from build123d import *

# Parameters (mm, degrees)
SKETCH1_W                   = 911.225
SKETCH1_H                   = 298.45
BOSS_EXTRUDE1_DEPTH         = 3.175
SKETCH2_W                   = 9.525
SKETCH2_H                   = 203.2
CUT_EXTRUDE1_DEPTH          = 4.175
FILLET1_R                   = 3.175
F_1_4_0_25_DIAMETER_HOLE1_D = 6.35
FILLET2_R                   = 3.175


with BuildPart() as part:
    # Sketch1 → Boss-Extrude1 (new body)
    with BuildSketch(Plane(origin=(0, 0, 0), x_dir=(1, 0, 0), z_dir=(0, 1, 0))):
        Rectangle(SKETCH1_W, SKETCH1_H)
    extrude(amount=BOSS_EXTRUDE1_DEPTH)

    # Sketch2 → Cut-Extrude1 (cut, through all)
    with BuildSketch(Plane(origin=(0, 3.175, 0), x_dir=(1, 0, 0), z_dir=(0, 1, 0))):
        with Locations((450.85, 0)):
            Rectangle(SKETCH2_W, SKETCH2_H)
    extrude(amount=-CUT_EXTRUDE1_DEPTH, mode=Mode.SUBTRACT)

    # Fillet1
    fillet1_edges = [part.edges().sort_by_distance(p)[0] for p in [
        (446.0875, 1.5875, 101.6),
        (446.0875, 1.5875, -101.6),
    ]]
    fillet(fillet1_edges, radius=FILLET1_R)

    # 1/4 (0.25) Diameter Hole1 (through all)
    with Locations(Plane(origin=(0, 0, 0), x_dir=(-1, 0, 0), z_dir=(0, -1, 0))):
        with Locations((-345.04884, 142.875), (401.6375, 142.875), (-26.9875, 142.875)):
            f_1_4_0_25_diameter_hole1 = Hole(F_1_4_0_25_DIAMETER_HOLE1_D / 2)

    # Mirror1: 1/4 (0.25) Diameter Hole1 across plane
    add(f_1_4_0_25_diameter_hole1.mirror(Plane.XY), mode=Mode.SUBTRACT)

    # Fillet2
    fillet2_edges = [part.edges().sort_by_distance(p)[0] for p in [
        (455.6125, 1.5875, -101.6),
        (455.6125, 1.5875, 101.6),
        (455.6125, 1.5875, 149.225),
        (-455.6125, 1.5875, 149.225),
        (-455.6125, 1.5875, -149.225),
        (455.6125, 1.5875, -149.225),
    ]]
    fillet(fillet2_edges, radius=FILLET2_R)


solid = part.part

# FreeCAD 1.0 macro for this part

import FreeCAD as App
import Part
import Sketcher
Q = App.Units.Quantity


def edges_at(feature, points):
    """Names of the edges that pass closest to the given points."""
    edges = feature.Shape.Edges
    near = lambda p: min(range(len(edges)), key=lambda i: edges[i].distToShape(Part.Vertex(*p))[0])
    return sorted({f"Edge{near(p) + 1}" for p in points})


def add_polygon(sketch, points):
    """Adds a closed chain of lines whose ends are joined by coincident constraints."""
    first, n = sketch.GeometryCount, len(points)
    for a, b in zip(points, points[1:] + points[:1]):
        sketch.addGeometry(Part.LineSegment(App.Vector(*a, 0), App.Vector(*b, 0)), False)
    for i in range(n):
        sketch.addConstraint(Sketcher.Constraint("Coincident", first + i, 2, first + (i + 1) % n, 1))

doc = App.newDocument("Part")
body = doc.addObject("PartDesign::Body", "Body")

# Sketch on XZ plane
sketch1 = body.newObject("Sketcher::SketchObject", "Sketch")
sketch1.AttachmentSupport = (doc.getObject("XZ_Plane"), [""])
sketch1.MapMode = "FlatFace"
add_polygon(sketch1, [(-455.6125, -149.225), (-455.6125, 149.225), (455.6125, 149.225), (455.6125, -149.225)])  # lines 0-3
sketch1.addConstraint([
    Sketcher.Constraint("Vertical", 0),
    Sketcher.Constraint("Horizontal", 1),
    Sketcher.Constraint("Vertical", 2),
    Sketcher.Constraint("Horizontal", 3),
    Sketcher.Constraint("Symmetric", 0, 2, 2, 2, -1, 1),
    Sketcher.Constraint("DistanceY", 0, 1, 0, 2, Q("11.75 in")),
    Sketcher.Constraint("DistanceX", 1, 1, 1, 2, Q("35.875 in")),
])
pad1 = body.newObject("PartDesign::Pad", "Pad")
pad1.Profile = sketch1
pad1.Length = Q("0.125 in")
pad1.Reversed = True

# Sketch on XZ plane
sketch2 = body.newObject("Sketcher::SketchObject", "Sketch001")
sketch2.AttachmentSupport = (doc.getObject("XZ_Plane"), [""])
sketch2.MapMode = "FlatFace"
sketch2.AttachmentOffset = App.Placement(App.Vector(0, 0, -0.125 * 25.4), App.Rotation())
add_polygon(sketch2, [(446.0875, -101.6), (446.0875, 101.6), (455.6125, 101.6), (455.6125, -101.6)])  # lines 0-3
sketch2.addConstraint([
    Sketcher.Constraint("Vertical", 0),
    Sketcher.Constraint("Horizontal", 1),
    Sketcher.Constraint("Vertical", 2),
    Sketcher.Constraint("Horizontal", 3),
    Sketcher.Constraint("DistanceY", 0, 1, 0, 2, Q("8 in")),
    Sketcher.Constraint("DistanceY", -1, 1, 0, 2, Q("4 in")),
    Sketcher.Constraint("DistanceX", 1, 1, 1, 2, Q("0.375 in")),
    Sketcher.Constraint("DistanceX", -1, 1, 0, 2, Q("17.5625 in")),
])
pocket1 = body.newObject("PartDesign::Pocket", "Pocket")
pocket1.Profile = sketch2
pocket1.Type = "ThroughAll"
pocket1.Reversed = True
doc.recompute()

fillet = body.newObject("PartDesign::Fillet", "Fillet")
fillet.Base = (pocket1, edges_at(pocket1, [(446.087, 1.587, 101.6), (446.087, 1.587, -101.6)]))
fillet.Radius = Q("0.125 in")

# Sketch on XZ plane
sketch3 = body.newObject("Sketcher::SketchObject", "Sketch002")
sketch3.AttachmentSupport = (doc.getObject("XZ_Plane"), [""])
sketch3.MapMode = "FlatFace"
sketch3.addGeometry([
    Part.Circle(App.Vector(345.04884, -142.875, 0), App.Vector(0, 0, 1), 3.175),
    Part.Circle(App.Vector(-401.6375, -142.875, 0), App.Vector(0, 0, 1), 3.175),
    Part.Circle(App.Vector(26.9875, -142.875, 0), App.Vector(0, 0, 1), 3.175),
], False)
sketch3.addConstraint([
    Sketcher.Constraint("Equal", 0, 1),
    Sketcher.Constraint("Equal", 1, 2),
    Sketcher.Constraint("Horizontal", 0, 3, 1, 3),
    Sketcher.Constraint("Horizontal", 1, 3, 2, 3),
    Sketcher.Constraint("Diameter", 0, Q("0.25 in")),
    Sketcher.Constraint("DistanceY", 0, 3, -1, 1, Q("5.625 in")),
    Sketcher.Constraint("DistanceX", 1, 3, -1, 1, Q("15.8125 in")),
    Sketcher.Constraint("DistanceX", -1, 1, 2, 3, Q("1.0625 in")),
    Sketcher.Constraint("DistanceX", -1, 1, 0, 3, Q("13.5846 in")),
])
doc.recompute()
hole = body.newObject("PartDesign::Hole", "Hole")
hole.Profile = sketch3
hole.ThreadType = "None"
hole.Diameter = Q("0.25 in")
hole.DepthType = "ThroughAll"
doc.recompute()

mirrored = body.newObject("PartDesign::Mirrored", "Mirrored")
mirrored.Originals = [hole]
mirrored.MirrorPlane = (doc.getObject("XY_Plane"), [""])
body.Tip = mirrored
doc.recompute()

fillet2 = body.newObject("PartDesign::Fillet", "Fillet001")
fillet2.Base = (mirrored, edges_at(mirrored, [
    (455.613, 1.587, -101.6),
    (455.613, 1.587, 101.6),
    (455.613, 1.587, 149.225),
    (-455.613, 1.587, 149.225),
    (-455.613, 1.587, -149.225),
    (455.613, 1.587, -149.225),
]))
fillet2.Radius = Q("0.125 in")

doc.recompute()
